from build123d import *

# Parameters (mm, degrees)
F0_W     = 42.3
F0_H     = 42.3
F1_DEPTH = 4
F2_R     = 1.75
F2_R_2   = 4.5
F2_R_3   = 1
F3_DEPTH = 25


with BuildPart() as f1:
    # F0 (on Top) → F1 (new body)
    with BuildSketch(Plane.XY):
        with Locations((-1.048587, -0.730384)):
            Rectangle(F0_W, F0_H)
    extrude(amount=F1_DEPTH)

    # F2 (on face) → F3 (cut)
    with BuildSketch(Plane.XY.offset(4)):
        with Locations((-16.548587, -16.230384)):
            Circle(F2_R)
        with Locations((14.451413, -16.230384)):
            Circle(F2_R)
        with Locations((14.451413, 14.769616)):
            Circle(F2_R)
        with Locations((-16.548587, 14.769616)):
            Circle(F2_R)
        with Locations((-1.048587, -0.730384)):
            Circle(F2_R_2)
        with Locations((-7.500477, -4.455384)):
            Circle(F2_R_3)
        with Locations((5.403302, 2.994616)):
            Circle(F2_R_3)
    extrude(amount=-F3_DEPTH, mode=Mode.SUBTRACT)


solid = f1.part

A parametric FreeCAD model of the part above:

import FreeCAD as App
import Part
import Sketcher

V = App.Vector


def add_polygon(sketch, points):
    """Adds a closed chain of lines whose ends are joined by coincident constraints."""
    first, n = sketch.GeometryCount, len(points)
    for a, b in zip(points, points[1:] + points[:1]):
        sketch.addGeometry(Part.LineSegment(App.Vector(*a, 0), App.Vector(*b, 0)), False)
    for i in range(n):
        sketch.addConstraint(Sketcher.Constraint("Coincident", first + i, 2, first + (i + 1) % n, 1))

doc = App.newDocument("Part")
body = doc.addObject("PartDesign::Body", "Body")

sketch1 = body.newObject("Sketcher::SketchObject", "Sketch")
sketch1.AttachmentSupport = (doc.getObject("XY_Plane"), [""])
sketch1.MapMode = "FlatFace"
add_polygon(sketch1, [(-22, 20), (-22, -22), (20, -22), (20, 20)])
sketch1.addConstraint([
    Sketcher.Constraint("Vertical", 0),
    Sketcher.Constraint("Horizontal", 1),
    Sketcher.Constraint("Vertical", 2),
    Sketcher.Constraint("Horizontal", 3),
    Sketcher.Constraint("Equal", 3, 0),
    Sketcher.Constraint("DistanceX", 1, 1, 1, 2, 42.3),
    Sketcher.Constraint("DistanceX", 0, 2, -1, 1, 22.198587),
    Sketcher.Constraint("DistanceY", 0, 2, -1, 1, 21.880384),
])
pad1 = body.newObject("PartDesign::Pad", "Pad")
pad1.Profile = sketch1
pad1.Length = 4

sketch2 = body.newObject("Sketcher::SketchObject", "Sketch001")
sketch2.AttachmentSupport = (doc.getObject("XY_Plane"), [""])
sketch2.MapMode = "FlatFace"
sketch2.AttachmentOffset = App.Placement(V(0, 0, 4), App.Rotation())
sketch2.addGeometry([
    Part.Circle(V(-16.5, -16.2, 0), V(0, 0, 1), 1.8),
    Part.Circle(V(14.5, -16.2, 0), V(0, 0, 1), 1.8),
    Part.Circle(V(14.5, 14.8, 0), V(0, 0, 1), 1.8),
    Part.Circle(V(-16.5, 14.8, 0), V(0, 0, 1), 1.8),
    Part.Circle(V(-1, -0.7, 0), V(0, 0, 1), 4.5),
    Part.Circle(V(-7.5, -4.5, 0), V(0, 0, 1), 1),
    Part.Circle(V(5.4, 3, 0), V(0, 0, 1), 1),
], False)
sketch2.addConstraint([
    Sketcher.Constraint("Equal", 0, 1),
    Sketcher.Constraint("Equal", 1, 2),
    Sketcher.Constraint("Equal", 2, 3),
    Sketcher.Constraint("Equal", 5, 6),
    Sketcher.Constraint("Horizontal", 0, 3, 1, 3),
    Sketcher.Constraint("Horizontal", 2, 3, 3, 3),
    Sketcher.Constraint("Vertical", 1, 3, 2, 3),
    Sketcher.Constraint("Vertical", 0, 3, 3, 3),
    Sketcher.Constraint("Diameter", 4, 9.0),
    Sketcher.Constraint("Diameter", 5, 2.0),
    Sketcher.Constraint("Diameter", 0, 3.5),
    Sketcher.Constraint("DistanceX", 0, 3, 1, 3, 31.0),
    Sketcher.Constraint("DistanceY", 1, 3, 2, 3, 31.0),
    Sketcher.Constraint("DistanceX", 4, 3, 1, 3, 15.5),
    Sketcher.Constraint("DistanceY", 1, 3, 4, 3, 15.5),
    Sketcher.Constraint("DistanceY", 5, 3, 6, 3, 7.45),
    Sketcher.Constraint("DistanceY", 5, 3, 4, 3, 3.725),
    Sketcher.Constraint("DistanceX", 5, 3, 4, 3, 6.45189),
    Sketcher.Constraint("DistanceX", 4, 3, 6, 3, 6.451889),
    Sketcher.Constraint("DistanceX", 0, 3, -1, 1, 16.548587),
    Sketcher.Constraint("DistanceY", 0, 3, -1, 1, 16.230384),
])
pocket1 = body.newObject("PartDesign::Pocket", "Pocket")
pocket1.Profile = sketch2
pocket1.Length = 25

doc.recompute()
